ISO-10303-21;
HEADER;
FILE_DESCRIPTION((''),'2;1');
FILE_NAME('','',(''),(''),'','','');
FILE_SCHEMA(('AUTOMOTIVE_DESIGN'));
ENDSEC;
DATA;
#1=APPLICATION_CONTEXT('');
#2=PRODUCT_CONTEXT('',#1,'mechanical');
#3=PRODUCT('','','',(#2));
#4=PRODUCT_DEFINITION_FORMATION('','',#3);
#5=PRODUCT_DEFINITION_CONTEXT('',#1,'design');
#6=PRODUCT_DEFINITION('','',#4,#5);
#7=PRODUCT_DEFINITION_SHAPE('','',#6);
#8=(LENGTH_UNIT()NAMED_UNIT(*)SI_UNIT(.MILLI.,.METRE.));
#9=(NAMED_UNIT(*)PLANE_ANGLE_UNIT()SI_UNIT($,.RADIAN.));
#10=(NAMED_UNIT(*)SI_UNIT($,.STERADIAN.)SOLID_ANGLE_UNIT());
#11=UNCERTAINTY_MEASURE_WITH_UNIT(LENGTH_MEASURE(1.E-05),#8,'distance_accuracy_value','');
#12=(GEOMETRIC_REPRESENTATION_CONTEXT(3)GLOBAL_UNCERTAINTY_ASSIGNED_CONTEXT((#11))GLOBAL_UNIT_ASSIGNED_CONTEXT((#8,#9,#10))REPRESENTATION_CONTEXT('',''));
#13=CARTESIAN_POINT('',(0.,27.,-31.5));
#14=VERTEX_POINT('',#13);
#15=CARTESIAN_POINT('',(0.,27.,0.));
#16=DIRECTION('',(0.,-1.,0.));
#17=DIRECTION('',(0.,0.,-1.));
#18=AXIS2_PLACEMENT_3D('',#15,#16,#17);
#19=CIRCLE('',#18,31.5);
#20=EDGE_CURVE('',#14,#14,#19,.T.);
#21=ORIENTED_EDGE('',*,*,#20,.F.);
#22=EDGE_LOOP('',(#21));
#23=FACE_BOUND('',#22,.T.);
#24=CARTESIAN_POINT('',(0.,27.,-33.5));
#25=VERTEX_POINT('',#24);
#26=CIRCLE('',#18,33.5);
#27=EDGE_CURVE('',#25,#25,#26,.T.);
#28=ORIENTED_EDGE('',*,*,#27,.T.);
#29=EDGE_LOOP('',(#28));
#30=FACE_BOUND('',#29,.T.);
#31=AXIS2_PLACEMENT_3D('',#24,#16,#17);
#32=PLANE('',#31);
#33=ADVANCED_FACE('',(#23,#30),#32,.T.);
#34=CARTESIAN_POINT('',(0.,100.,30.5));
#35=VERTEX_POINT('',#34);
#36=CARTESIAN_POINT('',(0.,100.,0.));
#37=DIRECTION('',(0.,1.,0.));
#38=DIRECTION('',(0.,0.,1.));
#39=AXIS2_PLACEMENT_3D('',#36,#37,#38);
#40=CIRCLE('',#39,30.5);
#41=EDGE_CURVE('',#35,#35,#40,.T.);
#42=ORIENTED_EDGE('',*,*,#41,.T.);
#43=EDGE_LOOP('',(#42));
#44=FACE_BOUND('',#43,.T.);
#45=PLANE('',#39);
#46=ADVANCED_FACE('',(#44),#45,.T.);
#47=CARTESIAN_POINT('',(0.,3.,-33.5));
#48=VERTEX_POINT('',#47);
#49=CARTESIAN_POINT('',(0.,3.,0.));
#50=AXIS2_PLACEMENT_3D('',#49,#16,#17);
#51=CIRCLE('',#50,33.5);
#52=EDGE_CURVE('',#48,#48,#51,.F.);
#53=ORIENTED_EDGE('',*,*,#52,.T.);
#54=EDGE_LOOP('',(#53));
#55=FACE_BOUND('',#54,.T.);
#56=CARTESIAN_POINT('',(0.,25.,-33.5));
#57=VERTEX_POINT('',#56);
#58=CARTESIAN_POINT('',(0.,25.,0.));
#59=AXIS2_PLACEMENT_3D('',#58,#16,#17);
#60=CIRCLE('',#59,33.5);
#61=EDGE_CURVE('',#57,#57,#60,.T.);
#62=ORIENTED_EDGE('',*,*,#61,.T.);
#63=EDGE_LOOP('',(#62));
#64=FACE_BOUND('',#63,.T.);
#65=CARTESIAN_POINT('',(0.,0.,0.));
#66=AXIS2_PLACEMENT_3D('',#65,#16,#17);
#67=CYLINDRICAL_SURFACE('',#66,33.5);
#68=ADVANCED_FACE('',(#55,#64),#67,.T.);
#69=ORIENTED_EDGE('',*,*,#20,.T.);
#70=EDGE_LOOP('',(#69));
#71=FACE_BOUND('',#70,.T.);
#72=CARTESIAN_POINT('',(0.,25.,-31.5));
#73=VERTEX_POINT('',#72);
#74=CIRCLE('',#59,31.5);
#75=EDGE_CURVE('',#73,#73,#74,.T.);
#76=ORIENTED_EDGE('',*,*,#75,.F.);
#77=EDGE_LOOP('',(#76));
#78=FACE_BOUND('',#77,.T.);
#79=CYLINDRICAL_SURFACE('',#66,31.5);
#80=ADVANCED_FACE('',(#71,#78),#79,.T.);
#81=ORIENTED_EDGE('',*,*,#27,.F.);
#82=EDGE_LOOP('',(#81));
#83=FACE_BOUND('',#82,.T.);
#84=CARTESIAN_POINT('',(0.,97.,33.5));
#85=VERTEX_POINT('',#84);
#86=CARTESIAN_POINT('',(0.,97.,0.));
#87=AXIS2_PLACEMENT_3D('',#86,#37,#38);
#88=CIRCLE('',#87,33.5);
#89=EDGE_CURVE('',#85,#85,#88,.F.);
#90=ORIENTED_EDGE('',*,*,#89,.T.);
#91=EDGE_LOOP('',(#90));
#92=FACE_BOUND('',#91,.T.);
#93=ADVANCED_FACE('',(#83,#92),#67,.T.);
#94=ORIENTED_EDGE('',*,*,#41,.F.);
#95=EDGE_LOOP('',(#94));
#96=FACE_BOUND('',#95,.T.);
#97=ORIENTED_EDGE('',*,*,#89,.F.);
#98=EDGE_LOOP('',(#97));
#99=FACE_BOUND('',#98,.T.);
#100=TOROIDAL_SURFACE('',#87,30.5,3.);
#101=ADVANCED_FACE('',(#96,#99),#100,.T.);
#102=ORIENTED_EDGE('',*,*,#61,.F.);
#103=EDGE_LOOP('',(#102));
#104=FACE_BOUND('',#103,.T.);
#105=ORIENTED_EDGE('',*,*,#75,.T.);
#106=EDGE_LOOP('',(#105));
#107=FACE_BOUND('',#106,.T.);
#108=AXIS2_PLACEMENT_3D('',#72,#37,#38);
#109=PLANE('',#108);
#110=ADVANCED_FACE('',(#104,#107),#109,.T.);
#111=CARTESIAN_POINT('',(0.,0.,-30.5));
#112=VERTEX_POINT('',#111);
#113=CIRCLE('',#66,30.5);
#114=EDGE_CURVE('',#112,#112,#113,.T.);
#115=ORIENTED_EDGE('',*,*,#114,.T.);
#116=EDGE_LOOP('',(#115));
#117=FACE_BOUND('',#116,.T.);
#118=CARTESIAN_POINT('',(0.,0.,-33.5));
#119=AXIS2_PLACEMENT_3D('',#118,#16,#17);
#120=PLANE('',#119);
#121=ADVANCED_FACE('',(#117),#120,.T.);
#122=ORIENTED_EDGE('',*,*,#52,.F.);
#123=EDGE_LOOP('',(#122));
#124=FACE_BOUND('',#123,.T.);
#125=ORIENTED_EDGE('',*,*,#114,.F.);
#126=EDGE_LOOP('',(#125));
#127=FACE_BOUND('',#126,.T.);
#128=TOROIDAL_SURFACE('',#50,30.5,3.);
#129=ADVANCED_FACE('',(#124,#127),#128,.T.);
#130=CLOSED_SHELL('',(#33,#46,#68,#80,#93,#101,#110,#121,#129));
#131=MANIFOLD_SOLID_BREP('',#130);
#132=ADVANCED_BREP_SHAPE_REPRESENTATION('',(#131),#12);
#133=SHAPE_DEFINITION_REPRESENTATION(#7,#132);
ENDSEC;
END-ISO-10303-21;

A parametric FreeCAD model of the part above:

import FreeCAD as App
import Part
import Sketcher
from FreeCAD import Vector
Q = App.Units.Quantity


def edges_at(feature, points):
    """Names of the edges that pass closest to the given points."""
    edges = feature.Shape.Edges
    near = lambda p: min(range(len(edges)), key=lambda i: edges[i].distToShape(Part.Vertex(*p))[0])
    return sorted({f"Edge{near(p) + 1}" for p in points})


def add_polygon(sketch, points):
    """Adds a closed chain of lines whose ends are joined by coincident constraints."""
    first, n = sketch.GeometryCount, len(points)
    for a, b in zip(points, points[1:] + points[:1]):
        sketch.addGeometry(Part.LineSegment(App.Vector(*a, 0), App.Vector(*b, 0)), False)
    for i in range(n):
        sketch.addConstraint(Sketcher.Constraint("Coincident", first + i, 2, first + (i + 1) % n, 1))

doc = App.newDocument("Part")
body = doc.addObject("PartDesign::Body", "Body")

# Sketch on YZ plane
sketch1 = body.newObject("Sketcher::SketchObject", "Sketch")
sketch1.AttachmentSupport = (doc.getObject("YZ_Plane"), [""])
sketch1.MapMode = "FlatFace"
add_polygon(sketch1, [(100, 0), (0, 0), (0, -33.5), (25, -33.5), (25, -31.5), (27, -31.5), (27, -33.5), (100, -33.5)])  # lines 0-7
sketch1.addConstraint([
    Sketcher.Constraint("Horizontal", 0),
    Sketcher.Constraint("Vertical", 1),
    Sketcher.Constraint("Horizontal", 2),
    Sketcher.Constraint("Vertical", 3),
    Sketcher.Constraint("Horizontal", 4),
    Sketcher.Constraint("Vertical", 5),
    Sketcher.Constraint("Horizontal", 6),
    Sketcher.Constraint("Vertical", 7),
    Sketcher.Constraint("Coincident", 0, 2, -1, 1),
    Sketcher.Constraint("Horizontal", 2, 2, 5, 2),
    Sketcher.Constraint("Equal", 4, 3),
    Sketcher.Constraint("DistanceX", 0, 2, 0, 1, Q("100 mm")),
    Sketcher.Constraint("DistanceX", 2, 1, 2, 2, Q("25 mm")),
    Sketcher.Constraint("DistanceX", 4, 1, 4, 2, Q("2 mm")),
    Sketcher.Constraint("DistanceY", 1, 2, 1, 1, Q("33.5 mm")),
])
revolution = body.newObject("PartDesign::Revolution", "Revolution")
revolution.Profile = sketch1
revolution.ReferenceAxis = (sketch1, ["H_Axis"])
revolution.Angle = 360
doc.recompute()

fillet = body.newObject("PartDesign::Fillet", "Fillet")
fillet.Base = (revolution, edges_at(revolution, [(0, 100, 33.5)]))
fillet.Radius = 3
doc.recompute()

fillet2 = body.newObject("PartDesign::Fillet", "Fillet001")
fillet2.Base = (fillet, edges_at(fillet, [(0, 0, 33.5)]))
fillet2.Radius = 3

doc.recompute()
